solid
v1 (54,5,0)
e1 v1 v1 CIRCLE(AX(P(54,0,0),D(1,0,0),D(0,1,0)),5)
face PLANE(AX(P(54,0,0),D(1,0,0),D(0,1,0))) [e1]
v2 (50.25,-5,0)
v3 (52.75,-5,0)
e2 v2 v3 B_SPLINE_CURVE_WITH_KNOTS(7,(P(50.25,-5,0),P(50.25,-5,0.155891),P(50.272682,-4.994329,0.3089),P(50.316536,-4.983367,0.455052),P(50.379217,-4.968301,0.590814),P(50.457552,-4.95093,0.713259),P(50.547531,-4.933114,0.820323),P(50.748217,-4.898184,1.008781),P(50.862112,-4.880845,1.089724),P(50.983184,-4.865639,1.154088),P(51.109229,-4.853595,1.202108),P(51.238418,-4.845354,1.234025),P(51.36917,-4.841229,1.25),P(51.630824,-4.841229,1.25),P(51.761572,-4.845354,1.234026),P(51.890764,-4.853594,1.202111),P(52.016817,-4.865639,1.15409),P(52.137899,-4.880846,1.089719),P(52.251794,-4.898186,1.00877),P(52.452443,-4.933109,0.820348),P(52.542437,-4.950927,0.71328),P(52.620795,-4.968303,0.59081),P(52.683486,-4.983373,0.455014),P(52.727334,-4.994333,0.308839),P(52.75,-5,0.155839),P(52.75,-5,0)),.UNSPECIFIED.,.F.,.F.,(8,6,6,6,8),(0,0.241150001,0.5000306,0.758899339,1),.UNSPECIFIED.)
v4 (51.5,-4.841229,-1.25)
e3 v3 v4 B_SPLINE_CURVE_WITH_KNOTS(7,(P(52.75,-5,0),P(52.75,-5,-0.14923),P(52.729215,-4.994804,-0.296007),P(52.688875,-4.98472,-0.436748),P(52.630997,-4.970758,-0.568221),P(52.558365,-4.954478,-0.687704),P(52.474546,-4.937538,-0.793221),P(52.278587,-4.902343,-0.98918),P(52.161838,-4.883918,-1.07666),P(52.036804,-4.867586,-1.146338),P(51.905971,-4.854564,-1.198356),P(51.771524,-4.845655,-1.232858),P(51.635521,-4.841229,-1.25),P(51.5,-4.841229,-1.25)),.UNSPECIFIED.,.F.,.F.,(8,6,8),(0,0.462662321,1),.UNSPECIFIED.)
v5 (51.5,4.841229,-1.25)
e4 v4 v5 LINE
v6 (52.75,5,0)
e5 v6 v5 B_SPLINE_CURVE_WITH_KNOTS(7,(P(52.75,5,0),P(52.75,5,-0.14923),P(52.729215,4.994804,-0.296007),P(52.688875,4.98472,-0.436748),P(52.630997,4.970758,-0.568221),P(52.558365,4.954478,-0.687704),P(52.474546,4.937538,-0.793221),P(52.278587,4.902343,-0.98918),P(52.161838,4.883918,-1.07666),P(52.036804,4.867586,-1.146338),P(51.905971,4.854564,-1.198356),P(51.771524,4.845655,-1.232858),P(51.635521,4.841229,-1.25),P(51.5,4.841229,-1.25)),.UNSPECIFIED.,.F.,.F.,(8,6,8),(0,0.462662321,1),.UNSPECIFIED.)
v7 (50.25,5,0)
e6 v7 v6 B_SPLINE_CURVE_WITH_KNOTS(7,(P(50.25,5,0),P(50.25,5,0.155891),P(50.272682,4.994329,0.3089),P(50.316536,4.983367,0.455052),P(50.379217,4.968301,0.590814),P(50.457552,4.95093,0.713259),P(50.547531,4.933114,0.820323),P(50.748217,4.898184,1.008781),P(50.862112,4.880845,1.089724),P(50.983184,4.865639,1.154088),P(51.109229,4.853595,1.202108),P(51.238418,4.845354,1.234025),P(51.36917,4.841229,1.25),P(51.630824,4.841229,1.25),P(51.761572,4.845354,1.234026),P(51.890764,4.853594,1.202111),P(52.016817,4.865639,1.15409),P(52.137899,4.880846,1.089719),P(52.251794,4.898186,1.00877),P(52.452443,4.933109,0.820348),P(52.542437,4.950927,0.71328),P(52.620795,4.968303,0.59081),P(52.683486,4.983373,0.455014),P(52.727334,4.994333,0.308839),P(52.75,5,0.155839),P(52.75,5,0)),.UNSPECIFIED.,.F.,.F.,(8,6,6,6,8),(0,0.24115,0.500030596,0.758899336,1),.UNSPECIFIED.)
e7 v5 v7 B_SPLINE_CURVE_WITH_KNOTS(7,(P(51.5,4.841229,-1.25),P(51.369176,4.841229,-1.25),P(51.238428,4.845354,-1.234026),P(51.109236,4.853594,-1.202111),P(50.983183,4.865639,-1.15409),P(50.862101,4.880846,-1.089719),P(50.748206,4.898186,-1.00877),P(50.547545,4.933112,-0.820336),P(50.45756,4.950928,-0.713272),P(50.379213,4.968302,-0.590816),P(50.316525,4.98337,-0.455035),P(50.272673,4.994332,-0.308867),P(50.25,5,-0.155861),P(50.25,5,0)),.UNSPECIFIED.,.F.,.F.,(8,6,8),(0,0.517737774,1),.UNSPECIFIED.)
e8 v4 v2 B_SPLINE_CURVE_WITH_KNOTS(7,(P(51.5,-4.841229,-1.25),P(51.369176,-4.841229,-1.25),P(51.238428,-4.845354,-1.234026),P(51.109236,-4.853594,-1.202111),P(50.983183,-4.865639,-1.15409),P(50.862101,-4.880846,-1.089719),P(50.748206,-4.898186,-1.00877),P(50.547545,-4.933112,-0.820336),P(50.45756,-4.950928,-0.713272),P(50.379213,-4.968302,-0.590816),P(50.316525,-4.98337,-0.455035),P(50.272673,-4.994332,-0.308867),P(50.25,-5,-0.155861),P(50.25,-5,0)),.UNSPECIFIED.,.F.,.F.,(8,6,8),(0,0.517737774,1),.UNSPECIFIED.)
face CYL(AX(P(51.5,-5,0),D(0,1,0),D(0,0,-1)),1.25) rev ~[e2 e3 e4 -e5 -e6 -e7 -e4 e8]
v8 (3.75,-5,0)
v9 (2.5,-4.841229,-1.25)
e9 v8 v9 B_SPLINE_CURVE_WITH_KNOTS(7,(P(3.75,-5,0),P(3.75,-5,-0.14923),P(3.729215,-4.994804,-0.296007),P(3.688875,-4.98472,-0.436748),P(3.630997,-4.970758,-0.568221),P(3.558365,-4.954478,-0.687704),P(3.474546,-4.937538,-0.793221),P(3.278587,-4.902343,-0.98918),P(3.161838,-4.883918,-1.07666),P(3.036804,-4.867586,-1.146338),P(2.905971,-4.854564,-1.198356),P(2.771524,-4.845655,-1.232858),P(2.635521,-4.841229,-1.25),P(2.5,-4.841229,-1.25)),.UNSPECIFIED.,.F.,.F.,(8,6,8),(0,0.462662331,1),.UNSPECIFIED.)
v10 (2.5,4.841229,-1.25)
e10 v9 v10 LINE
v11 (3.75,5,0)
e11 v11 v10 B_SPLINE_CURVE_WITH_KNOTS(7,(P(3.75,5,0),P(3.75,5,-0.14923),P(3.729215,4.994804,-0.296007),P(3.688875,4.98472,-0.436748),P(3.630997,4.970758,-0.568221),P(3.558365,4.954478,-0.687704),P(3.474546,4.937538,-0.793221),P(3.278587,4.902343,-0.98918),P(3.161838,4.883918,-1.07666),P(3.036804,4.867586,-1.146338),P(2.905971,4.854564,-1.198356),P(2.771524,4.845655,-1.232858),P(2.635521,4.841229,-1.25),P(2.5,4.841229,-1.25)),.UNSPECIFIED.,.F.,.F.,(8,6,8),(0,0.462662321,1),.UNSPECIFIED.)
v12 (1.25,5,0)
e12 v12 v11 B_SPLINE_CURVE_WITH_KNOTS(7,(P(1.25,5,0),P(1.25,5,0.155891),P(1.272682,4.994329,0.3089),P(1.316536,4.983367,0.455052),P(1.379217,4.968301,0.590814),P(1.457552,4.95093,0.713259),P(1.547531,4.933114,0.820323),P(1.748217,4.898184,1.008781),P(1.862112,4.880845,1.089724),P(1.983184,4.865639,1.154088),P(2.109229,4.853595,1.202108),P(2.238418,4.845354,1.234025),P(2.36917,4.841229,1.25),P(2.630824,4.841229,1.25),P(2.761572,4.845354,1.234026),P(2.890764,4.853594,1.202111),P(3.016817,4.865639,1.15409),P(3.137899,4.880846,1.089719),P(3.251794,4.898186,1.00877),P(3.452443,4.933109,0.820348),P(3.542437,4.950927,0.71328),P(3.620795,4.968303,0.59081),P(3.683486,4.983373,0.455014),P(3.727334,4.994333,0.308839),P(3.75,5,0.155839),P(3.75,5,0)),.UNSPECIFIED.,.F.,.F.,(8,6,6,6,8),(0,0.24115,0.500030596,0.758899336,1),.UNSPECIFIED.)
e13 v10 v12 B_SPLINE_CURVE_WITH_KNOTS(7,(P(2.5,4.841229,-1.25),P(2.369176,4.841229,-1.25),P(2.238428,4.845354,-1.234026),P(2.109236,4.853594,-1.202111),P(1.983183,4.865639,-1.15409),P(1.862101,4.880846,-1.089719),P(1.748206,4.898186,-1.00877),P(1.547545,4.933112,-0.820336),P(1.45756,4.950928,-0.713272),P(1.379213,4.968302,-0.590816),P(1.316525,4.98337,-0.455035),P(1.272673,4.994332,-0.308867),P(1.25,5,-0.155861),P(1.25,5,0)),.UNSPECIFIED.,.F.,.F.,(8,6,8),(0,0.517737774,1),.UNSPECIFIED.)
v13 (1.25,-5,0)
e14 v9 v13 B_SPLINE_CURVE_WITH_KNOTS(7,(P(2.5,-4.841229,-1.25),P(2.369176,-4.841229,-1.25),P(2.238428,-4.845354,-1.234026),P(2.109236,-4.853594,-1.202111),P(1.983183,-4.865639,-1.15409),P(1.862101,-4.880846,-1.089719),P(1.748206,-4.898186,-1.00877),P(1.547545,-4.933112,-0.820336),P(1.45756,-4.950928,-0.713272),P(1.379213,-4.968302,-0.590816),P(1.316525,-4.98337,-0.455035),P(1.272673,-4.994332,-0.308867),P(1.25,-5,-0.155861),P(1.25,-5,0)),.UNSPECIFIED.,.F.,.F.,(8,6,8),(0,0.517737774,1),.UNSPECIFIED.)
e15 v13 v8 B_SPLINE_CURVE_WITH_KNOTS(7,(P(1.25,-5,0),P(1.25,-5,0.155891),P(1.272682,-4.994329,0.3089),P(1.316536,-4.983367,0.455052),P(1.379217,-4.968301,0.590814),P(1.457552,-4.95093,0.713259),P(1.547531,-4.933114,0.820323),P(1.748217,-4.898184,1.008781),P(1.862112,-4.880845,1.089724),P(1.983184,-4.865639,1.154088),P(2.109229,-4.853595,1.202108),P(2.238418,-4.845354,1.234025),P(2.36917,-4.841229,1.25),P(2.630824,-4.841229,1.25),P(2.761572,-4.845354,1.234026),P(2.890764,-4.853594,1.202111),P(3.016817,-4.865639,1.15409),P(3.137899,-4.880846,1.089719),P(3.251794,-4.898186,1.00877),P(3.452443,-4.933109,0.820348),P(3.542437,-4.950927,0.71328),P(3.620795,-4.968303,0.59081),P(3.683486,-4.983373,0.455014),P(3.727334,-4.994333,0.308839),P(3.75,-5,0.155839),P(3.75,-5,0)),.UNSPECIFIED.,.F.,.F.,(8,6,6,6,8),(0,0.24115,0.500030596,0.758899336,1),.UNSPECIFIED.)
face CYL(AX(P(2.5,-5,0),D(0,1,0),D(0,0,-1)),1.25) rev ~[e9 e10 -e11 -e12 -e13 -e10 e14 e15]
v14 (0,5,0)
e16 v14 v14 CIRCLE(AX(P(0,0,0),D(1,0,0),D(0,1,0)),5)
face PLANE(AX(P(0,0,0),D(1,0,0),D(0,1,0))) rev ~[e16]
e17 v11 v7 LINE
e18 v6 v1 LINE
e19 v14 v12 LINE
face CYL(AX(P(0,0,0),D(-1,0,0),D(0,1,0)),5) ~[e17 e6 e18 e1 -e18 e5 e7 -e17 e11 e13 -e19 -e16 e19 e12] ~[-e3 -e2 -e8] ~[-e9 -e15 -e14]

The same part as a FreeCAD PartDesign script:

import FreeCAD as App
import Part
import Sketcher
Q = App.Units.Quantity

doc = App.newDocument("Part")
params = doc.addObject("Spreadsheet::Sheet", "Params")
for row, (alias, value) in enumerate([
    ("sketch1_diameter", "10 mm"),
    ("pad1_length", "54 mm"),
    ("sketch2_diameter", "2.5 mm"),
    ("hole_diameter", "2.5 mm"),
], start=1):
    params.set(f"A{row}", alias)
    params.set(f"B{row}", "=" + value)
    params.setAlias(f"B{row}", alias)

body = doc.addObject("PartDesign::Body", "Body")

# Sketch on YZ plane
sketch1 = doc.addObject("Sketcher::SketchObject", "Sketch")
body.addObject(sketch1)
sketch1.AttachmentSupport = (doc.YZ_Plane, [""])
sketch1.MapMode = "FlatFace"
sketch1.addGeometry(Part.Circle(App.Vector(0, 0, 0), App.Vector(0, 0, 1), 5), False)
sketch1.addConstraint(Sketcher.Constraint("Coincident", 0, 3, -1, 1))
sketch1.addConstraint(Sketcher.Constraint("Diameter", 0, Q("10 mm")))
sketch1.setExpression("Constraints[1]", "Params.sketch1_diameter")
pad1 = doc.addObject("PartDesign::Pad", "Pad")
body.addObject(pad1)
pad1.Profile = sketch1
pad1.setExpression("Length", "Params.pad1_length")

# Sketch on XZ plane
sketch2 = doc.addObject("Sketcher::SketchObject", "Sketch001")
body.addObject(sketch2)
sketch2.AttachmentSupport = (doc.XZ_Plane, [""])
sketch2.MapMode = "FlatFace"
sketch2.AttachmentOffset = App.Placement(App.Vector(0, 0, 5), App.Rotation())
sketch2.addGeometry(Part.Circle(App.Vector(2.5, 0, 0), App.Vector(0, 0, 1), 1.25), False)
sketch2.addGeometry(Part.Circle(App.Vector(51.5, 0, 0), App.Vector(0, 0, 1), 1.25), False)
sketch2.addConstraint(Sketcher.Constraint("Equal", 0, 1))
sketch2.addConstraint(Sketcher.Constraint("PointOnObject", 0, 3, -1))
sketch2.addConstraint(Sketcher.Constraint("PointOnObject", 1, 3, -1))
sketch2.addConstraint(Sketcher.Constraint("Diameter", 0, Q("2.5 mm")))
sketch2.addConstraint(Sketcher.Constraint("DistanceX", 0, 3, 1, 3, Q("49 mm")))
sketch2.addConstraint(Sketcher.Constraint("DistanceX", -1, 1, 0, 3, Q("2.5 mm")))
sketch2.setExpression("Constraints[3]", "Params.sketch2_diameter")
doc.recompute()
hole = doc.addObject("PartDesign::Hole", "Hole")
body.addObject(hole)
hole.Profile = sketch2
hole.ThreadType = "None"
hole.setExpression("Diameter", "Params.hole_diameter")
hole.DepthType = "ThroughAll"

doc.recompute()
